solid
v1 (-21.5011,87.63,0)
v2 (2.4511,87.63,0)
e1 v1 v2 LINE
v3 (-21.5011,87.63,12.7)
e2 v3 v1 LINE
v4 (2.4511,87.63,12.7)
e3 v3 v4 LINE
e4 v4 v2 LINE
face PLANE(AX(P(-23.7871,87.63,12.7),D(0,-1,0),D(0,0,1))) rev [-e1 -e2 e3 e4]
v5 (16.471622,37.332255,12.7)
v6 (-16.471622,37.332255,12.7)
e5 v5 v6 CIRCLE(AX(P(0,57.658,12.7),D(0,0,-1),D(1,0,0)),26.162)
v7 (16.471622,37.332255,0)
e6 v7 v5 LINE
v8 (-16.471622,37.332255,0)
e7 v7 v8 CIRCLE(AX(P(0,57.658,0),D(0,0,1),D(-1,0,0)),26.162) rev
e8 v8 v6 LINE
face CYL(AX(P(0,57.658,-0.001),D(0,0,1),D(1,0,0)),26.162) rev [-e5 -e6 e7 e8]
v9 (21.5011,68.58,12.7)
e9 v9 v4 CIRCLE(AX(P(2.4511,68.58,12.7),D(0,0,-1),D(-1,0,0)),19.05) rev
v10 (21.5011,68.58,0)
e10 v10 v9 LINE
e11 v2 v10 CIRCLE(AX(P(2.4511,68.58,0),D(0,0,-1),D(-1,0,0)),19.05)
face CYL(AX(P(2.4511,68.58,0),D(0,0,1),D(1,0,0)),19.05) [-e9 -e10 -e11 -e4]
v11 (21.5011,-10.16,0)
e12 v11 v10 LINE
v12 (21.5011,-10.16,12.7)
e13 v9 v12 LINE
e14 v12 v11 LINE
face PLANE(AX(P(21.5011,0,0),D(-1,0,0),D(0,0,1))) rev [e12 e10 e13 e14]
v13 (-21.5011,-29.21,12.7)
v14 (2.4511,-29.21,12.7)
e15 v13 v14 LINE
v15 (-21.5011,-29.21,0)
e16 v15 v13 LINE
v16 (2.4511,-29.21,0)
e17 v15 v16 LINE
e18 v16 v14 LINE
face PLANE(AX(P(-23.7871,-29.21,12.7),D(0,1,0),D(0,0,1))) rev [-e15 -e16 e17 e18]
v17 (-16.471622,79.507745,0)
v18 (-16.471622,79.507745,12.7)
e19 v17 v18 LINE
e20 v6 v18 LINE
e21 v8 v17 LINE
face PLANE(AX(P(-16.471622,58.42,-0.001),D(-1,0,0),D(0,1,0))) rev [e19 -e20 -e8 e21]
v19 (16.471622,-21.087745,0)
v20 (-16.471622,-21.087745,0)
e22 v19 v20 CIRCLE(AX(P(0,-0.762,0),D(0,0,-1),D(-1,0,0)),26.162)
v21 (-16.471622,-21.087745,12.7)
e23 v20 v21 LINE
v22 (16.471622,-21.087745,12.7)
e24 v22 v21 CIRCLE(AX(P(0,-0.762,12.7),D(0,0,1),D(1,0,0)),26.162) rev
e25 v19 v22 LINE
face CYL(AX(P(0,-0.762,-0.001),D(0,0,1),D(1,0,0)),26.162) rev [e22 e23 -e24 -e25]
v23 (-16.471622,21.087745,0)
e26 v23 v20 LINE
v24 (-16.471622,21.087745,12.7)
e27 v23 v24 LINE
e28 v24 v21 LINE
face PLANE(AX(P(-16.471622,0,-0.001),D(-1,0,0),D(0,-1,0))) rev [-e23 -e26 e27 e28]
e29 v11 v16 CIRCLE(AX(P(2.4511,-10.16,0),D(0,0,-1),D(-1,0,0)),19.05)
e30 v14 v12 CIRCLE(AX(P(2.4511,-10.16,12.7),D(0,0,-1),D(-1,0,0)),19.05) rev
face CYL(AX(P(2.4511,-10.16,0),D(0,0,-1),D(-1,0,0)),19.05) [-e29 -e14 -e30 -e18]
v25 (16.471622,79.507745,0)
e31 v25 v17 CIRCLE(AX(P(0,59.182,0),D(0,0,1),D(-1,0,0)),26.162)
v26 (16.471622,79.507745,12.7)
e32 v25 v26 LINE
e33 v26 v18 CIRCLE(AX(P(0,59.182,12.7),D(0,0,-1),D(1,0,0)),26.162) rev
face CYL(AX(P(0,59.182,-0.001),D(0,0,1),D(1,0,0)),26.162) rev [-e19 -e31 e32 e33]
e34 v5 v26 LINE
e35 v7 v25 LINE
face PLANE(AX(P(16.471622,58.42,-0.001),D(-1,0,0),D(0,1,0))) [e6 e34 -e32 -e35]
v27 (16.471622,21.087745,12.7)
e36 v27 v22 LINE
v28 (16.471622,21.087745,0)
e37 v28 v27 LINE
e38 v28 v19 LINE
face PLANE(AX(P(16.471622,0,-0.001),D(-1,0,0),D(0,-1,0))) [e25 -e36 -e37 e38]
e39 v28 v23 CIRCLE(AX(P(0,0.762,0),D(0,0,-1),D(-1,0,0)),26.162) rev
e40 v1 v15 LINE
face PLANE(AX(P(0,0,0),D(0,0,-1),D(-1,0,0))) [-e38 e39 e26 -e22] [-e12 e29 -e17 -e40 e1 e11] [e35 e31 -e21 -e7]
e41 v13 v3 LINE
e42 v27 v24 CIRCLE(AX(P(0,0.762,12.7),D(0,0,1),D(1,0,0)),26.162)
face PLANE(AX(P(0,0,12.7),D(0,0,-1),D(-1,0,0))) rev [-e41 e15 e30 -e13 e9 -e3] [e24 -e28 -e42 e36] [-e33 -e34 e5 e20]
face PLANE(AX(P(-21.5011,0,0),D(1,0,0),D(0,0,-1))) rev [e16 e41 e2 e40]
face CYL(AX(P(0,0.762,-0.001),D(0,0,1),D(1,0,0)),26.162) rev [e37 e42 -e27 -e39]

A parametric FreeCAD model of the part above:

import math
import FreeCAD as App
import Part
import Sketcher
from FreeCAD import Vector
Q = App.Units.Quantity


def edges_at(feature, points):
    """Names of the edges that pass closest to the given points."""
    edges = feature.Shape.Edges
    near = lambda p: min(range(len(edges)), key=lambda i: edges[i].distToShape(Part.Vertex(*p))[0])
    return sorted({f"Edge{near(p) + 1}" for p in points})


def add_polygon(sketch, points):
    """Adds a closed chain of lines whose ends are joined by coincident constraints."""
    first, n = sketch.GeometryCount, len(points)
    for a, b in zip(points, points[1:] + points[:1]):
        sketch.addGeometry(Part.LineSegment(App.Vector(*a, 0), App.Vector(*b, 0)), False)
    for i in range(n):
        sketch.addConstraint(Sketcher.Constraint("Coincident", first + i, 2, first + (i + 1) % n, 1))

doc = App.newDocument("Part")
params = doc.addObject("Spreadsheet::Sheet", "Params")
for row, (alias, value) in enumerate([
    ("sketch1_height", "2.3 in"),
    ("sketch1_width", "1.873 in"),
    ("pad1_length", "0.5 in"),
    ("sketch2_radius", "1.03 in"),
    ("sketch2_height", "2.12 in"),
    ("sketch3_radius", "1.03 in"),
    ("sketch3_height", "2.12 in"),
    ("sketch4_width", "4.6 in"),
    ("sketch4_height", "0.5 in"),
    ("pocket3_length", "0.09 in"),
    ("sketch5_width", "4.6 in"),
    ("sketch5_height", "0.5 in"),
    ("pocket4_length", "0.09 in"),
    ("fillet_radius", "0.75 in"),
], start=1):
    params.set(f"A{row}", alias)
    params.set(f"B{row}", "=" + value)
    params.setAlias(f"B{row}", alias)

body = doc.addObject("PartDesign::Body", "Body")

# Sketch on XY plane
sketch1 = doc.addObject("Sketcher::SketchObject", "Sketch")
body.addObject(sketch1)
sketch1.AttachmentSupport = (doc.XY_Plane, [""])
sketch1.MapMode = "FlatFace"
add_polygon(sketch1, [(-23.7871, 29.21), (-23.7871, -29.21), (23.7871, -29.21), (23.7871, 29.21)])  # lines 0-3
sketch1.addConstraint(Sketcher.Constraint("Vertical", 0))
sketch1.addConstraint(Sketcher.Constraint("Horizontal", 1))
sketch1.addConstraint(Sketcher.Constraint("Vertical", 2))
sketch1.addConstraint(Sketcher.Constraint("Horizontal", 3))
sketch1.addConstraint(Sketcher.Constraint("Symmetric", 0, 2, 2, 2, -1, 1))
sketch1.addConstraint(Sketcher.Constraint("DistanceY", 0, 2, 0, 1, Q("2.3 in")))
sketch1.addConstraint(Sketcher.Constraint("DistanceX", 1, 1, 1, 2, Q("1.873 in")))
sketch1.setExpression("Constraints[9]", "Params.sketch1_height")
sketch1.setExpression("Constraints[10]", "Params.sketch1_width")
pad1 = doc.addObject("PartDesign::Pad", "Pad")
body.addObject(pad1)
pad1.Profile = sketch1
pad1.setExpression("Length", "Params.pad1_length")

# Sketch on XY plane
sketch2 = doc.addObject("Sketcher::SketchObject", "Sketch001")
body.addObject(sketch2)
sketch2.AttachmentSupport = (doc.XY_Plane, [""])
sketch2.MapMode = "FlatFace"
sketch2.AttachmentOffset = App.Placement(Vector(0, 0, 0.5 * 25.4), App.Rotation())
sketch2.addGeometry(Part.ArcOfCircle(Part.Circle(Vector(0, -0.762, 0), Vector(0, 0, 1), 26.162), math.radians(-129.020693), math.radians(-90)), False)
sketch2.addGeometry(Part.LineSegment(Vector(0, -26.924, 0), Vector(0, 26.924, 0)), False)
sketch2.addGeometry(Part.ArcOfCircle(Part.Circle(Vector(0, 0.762, 0), Vector(0, 0, 1), 26.162), math.radians(90), math.radians(129.020693)), False)
sketch2.addGeometry(Part.LineSegment(Vector(-16.471622, 21.087745, 0), Vector(-16.471622, -21.087745, 0)), False)
sketch2.addConstraint(Sketcher.Constraint("Coincident", 0, 2, 1, 1))
sketch2.addConstraint(Sketcher.Constraint("Coincident", 1, 2, 2, 1))
sketch2.addConstraint(Sketcher.Constraint("Coincident", 2, 2, 3, 1))
sketch2.addConstraint(Sketcher.Constraint("Coincident", 3, 2, 0, 1))
sketch2.addConstraint(Sketcher.Constraint("Vertical", 1))
sketch2.addConstraint(Sketcher.Constraint("Vertical", 3))
sketch2.addConstraint(Sketcher.Constraint("Equal", 0, 2))
sketch2.addConstraint(Sketcher.Constraint("Symmetric", 0, 3, 2, 3, -1, 1))
sketch2.addConstraint(Sketcher.Constraint("PointOnObject", 0, 3, -2))
sketch2.addConstraint(Sketcher.Constraint("PointOnObject", 0, 2, -2))
sketch2.addConstraint(Sketcher.Constraint("Radius", 0, Q("1.03 in")))
sketch2.addConstraint(Sketcher.Constraint("DistanceY", 1, 1, 1, 2, Q("2.12 in")))
sketch2.addConstraint(Sketcher.Constraint("DistanceY", 3, 2, 3, 1, Q("42.17549 mm")))
sketch2.setExpression("Constraints[10]", "Params.sketch2_radius")
sketch2.setExpression("Constraints[11]", "Params.sketch2_height")
pocket1 = doc.addObject("PartDesign::Pocket", "Pocket")
body.addObject(pocket1)
pocket1.Profile = sketch2
pocket1.Type = "UpToFirst"

# Sketch on XY plane
sketch3 = doc.addObject("Sketcher::SketchObject", "Sketch002")
body.addObject(sketch3)
sketch3.AttachmentSupport = (doc.XY_Plane, [""])
sketch3.MapMode = "FlatFace"
sketch3.AttachmentOffset = App.Placement(Vector(0, 0, 0.5 * 25.4), App.Rotation())
sketch3.addGeometry(Part.ArcOfCircle(Part.Circle(Vector(0, -0.762, 0), Vector(0, 0, 1), 26.162), math.radians(-90), math.radians(-50.979307)), False)
sketch3.addGeometry(Part.LineSegment(Vector(16.471622, -21.087745, 0), Vector(16.471622, 21.087745, 0)), False)
sketch3.addGeometry(Part.ArcOfCircle(Part.Circle(Vector(0, 0.762, 0), Vector(0, 0, 1), 26.162), math.radians(50.979307), math.radians(90)), False)
sketch3.addGeometry(Part.LineSegment(Vector(0, 26.924, 0), Vector(0, -26.924, 0)), False)
sketch3.addConstraint(Sketcher.Constraint("Coincident", 0, 2, 1, 1))
sketch3.addConstraint(Sketcher.Constraint("Coincident", 1, 2, 2, 1))
sketch3.addConstraint(Sketcher.Constraint("Coincident", 2, 2, 3, 1))
sketch3.addConstraint(Sketcher.Constraint("Coincident", 3, 2, 0, 1))
sketch3.addConstraint(Sketcher.Constraint("Vertical", 1))
sketch3.addConstraint(Sketcher.Constraint("Vertical", 3))
sketch3.addConstraint(Sketcher.Constraint("Equal", 0, 2))
sketch3.addConstraint(Sketcher.Constraint("Symmetric", 0, 3, 2, 3, -1, 1))
sketch3.addConstraint(Sketcher.Constraint("PointOnObject", 0, 3, -2))
sketch3.addConstraint(Sketcher.Constraint("PointOnObject", 2, 2, -2))
sketch3.addConstraint(Sketcher.Constraint("Radius", 0, Q("1.03 in")))
sketch3.addConstraint(Sketcher.Constraint("DistanceY", 3, 2, 3, 1, Q("2.12 in")))
sketch3.addConstraint(Sketcher.Constraint("DistanceY", 1, 1, 1, 2, Q("42.17549 mm")))
sketch3.setExpression("Constraints[10]", "Params.sketch3_radius")
sketch3.setExpression("Constraints[11]", "Params.sketch3_height")
pocket2 = doc.addObject("PartDesign::Pocket", "Pocket001")
body.addObject(pocket2)
pocket2.Profile = sketch3
pocket2.Type = "UpToFirst"
body2 = doc.addObject("PartDesign::Body", "Body001")
doc.recompute()

body2.BaseFeature = body
doc.recompute()

mirroring = doc.addObject("Part::Mirroring", "Mirroring")
mirroring.Source = body
mirroring.Base = Vector(-23.7871, 29.21, 12.7)
mirroring.Normal = Vector(0, -1, 0)
body3 = doc.addObject("PartDesign::Body", "Body002")
body3.BaseFeature = mirroring
boolean = doc.addObject("PartDesign::Boolean", "Boolean")
body2.addObject(boolean)
boolean.Type = "Fuse"
boolean.addObjects([body3])
doc.recompute()

# Sketch on YZ plane
sketch4 = doc.addObject("Sketcher::SketchObject", "Sketch003")
body2.addObject(sketch4)
sketch4.AttachmentSupport = (doc.getObject("YZ_Plane001"), [""])
sketch4.MapMode = "FlatFace"
sketch4.AttachmentOffset = App.Placement(Vector(0, 0, 0.9365 * 25.4), App.Rotation())
add_polygon(sketch4, [(87.63, 12.7), (-29.21, 12.7), (-29.21, 0), (87.63, 0)])  # lines 0-3
sketch4.addConstraint(Sketcher.Constraint("Horizontal", 0))
sketch4.addConstraint(Sketcher.Constraint("Vertical", 1))
sketch4.addConstraint(Sketcher.Constraint("Horizontal", 2))
sketch4.addConstraint(Sketcher.Constraint("Vertical", 3))
sketch4.addConstraint(Sketcher.Constraint("PointOnObject", 1, 2, -1))
sketch4.addConstraint(Sketcher.Constraint("DistanceX", 0, 2, 0, 1, Q("4.6 in")))
sketch4.addConstraint(Sketcher.Constraint("DistanceY", 1, 2, 1, 1, Q("0.5 in")))
sketch4.addConstraint(Sketcher.Constraint("DistanceX", 0, 2, -1, 1, Q("1.15 in")))
sketch4.setExpression("Constraints[9]", "Params.sketch4_width")
sketch4.setExpression("Constraints[10]", "Params.sketch4_height")
pocket3 = doc.addObject("PartDesign::Pocket", "Pocket002")
body2.addObject(pocket3)
pocket3.Profile = sketch4
pocket3.setExpression("Length", "Params.pocket3_length")

# Sketch on YZ plane
sketch5 = doc.addObject("Sketcher::SketchObject", "Sketch004")
body2.addObject(sketch5)
sketch5.AttachmentSupport = (doc.getObject("YZ_Plane001"), [""])
sketch5.MapMode = "FlatFace"
sketch5.AttachmentOffset = App.Placement(Vector(0, 0, -0.9365 * 25.4), App.Rotation())
add_polygon(sketch5, [(87.63, 0), (-29.21, 0), (-29.21, 12.7), (87.63, 12.7)])  # lines 0-3
sketch5.addConstraint(Sketcher.Constraint("Horizontal", 0))
sketch5.addConstraint(Sketcher.Constraint("Vertical", 1))
sketch5.addConstraint(Sketcher.Constraint("Horizontal", 2))
sketch5.addConstraint(Sketcher.Constraint("Vertical", 3))
sketch5.addConstraint(Sketcher.Constraint("PointOnObject", 0, 2, -1))
sketch5.addConstraint(Sketcher.Constraint("DistanceX", 0, 2, 0, 1, Q("4.6 in")))
sketch5.addConstraint(Sketcher.Constraint("DistanceY", 1, 1, 1, 2, Q("0.5 in")))
sketch5.addConstraint(Sketcher.Constraint("DistanceX", 0, 2, -1, 1, Q("1.15 in")))
sketch5.setExpression("Constraints[9]", "Params.sketch5_width")
sketch5.setExpression("Constraints[10]", "Params.sketch5_height")
pocket4 = doc.addObject("PartDesign::Pocket", "Pocket003")
body2.addObject(pocket4)
pocket4.Profile = sketch5
pocket4.setExpression("Length", "Params.pocket4_length")
pocket4.Reversed = True
doc.recompute()

fillet = doc.addObject("PartDesign::Fillet", "Fillet")
body2.addObject(fillet)
fillet.Base = (pocket4, edges_at(pocket4, [(21.501, 87.63, 6.35), (21.501, -29.21, 6.35)]))
fillet.setExpression("Radius", "Params.fillet_radius")
mirroring.Visibility = False

doc.recompute()
